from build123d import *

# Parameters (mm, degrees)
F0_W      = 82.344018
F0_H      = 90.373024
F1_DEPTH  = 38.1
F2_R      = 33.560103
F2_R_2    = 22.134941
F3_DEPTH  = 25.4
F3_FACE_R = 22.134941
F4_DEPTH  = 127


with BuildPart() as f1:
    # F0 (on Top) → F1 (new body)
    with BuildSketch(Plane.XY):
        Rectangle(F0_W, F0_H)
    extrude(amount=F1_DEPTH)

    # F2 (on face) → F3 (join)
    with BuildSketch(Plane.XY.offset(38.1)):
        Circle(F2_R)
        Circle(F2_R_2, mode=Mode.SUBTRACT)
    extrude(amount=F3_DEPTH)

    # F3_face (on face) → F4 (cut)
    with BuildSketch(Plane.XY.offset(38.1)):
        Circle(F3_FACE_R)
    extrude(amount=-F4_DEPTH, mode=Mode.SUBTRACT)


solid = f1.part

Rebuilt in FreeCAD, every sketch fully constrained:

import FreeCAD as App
import Part
import Sketcher
from FreeCAD import Vector
Q = App.Units.Quantity

doc = App.newDocument("Part")
body = doc.addObject("PartDesign::Body", "Body")

# Sketch on XY plane
sketch1 = body.newObject("Sketcher::SketchObject", "Sketch")
sketch1.AttachmentSupport = (doc.getObject("XY_Plane"), [""])
sketch1.MapMode = "FlatFace"
sketch1.addGeometry([
    Part.LineSegment(Vector(-41, 45, 0), Vector(-41, -45, 0)),
    Part.LineSegment(Vector(-41, -45, 0), Vector(41, -45, 0)),
    Part.LineSegment(Vector(41, -45, 0), Vector(41, 45, 0)),
    Part.LineSegment(Vector(41, 45, 0), Vector(-41, 45, 0)),
], False)
sketch1.addConstraint([
    Sketcher.Constraint("Coincident", 0, 2, 1, 1),
    Sketcher.Constraint("Coincident", 1, 2, 2, 1),
    Sketcher.Constraint("Coincident", 2, 2, 3, 1),
    Sketcher.Constraint("Coincident", 3, 2, 0, 1),
    Sketcher.Constraint("Vertical", 0),
    Sketcher.Constraint("Horizontal", 1),
    Sketcher.Constraint("Vertical", 2),
    Sketcher.Constraint("Horizontal", 3),
    Sketcher.Constraint("Symmetric", 0, 2, 2, 2, -1, 1),
    Sketcher.Constraint("DistanceX", 1, 1, 1, 2, 82.344018),
    Sketcher.Constraint("DistanceY", 0, 2, 0, 1, 90.373024),
])
pad1 = body.newObject("PartDesign::Pad", "Pad")
pad1.Profile = sketch1
pad1.Length = Q("1.5 in")

# Sketch on XY plane
sketch2 = body.newObject("Sketcher::SketchObject", "Sketch001")
sketch2.AttachmentSupport = (doc.getObject("XY_Plane"), [""])
sketch2.MapMode = "FlatFace"
sketch2.AttachmentOffset = App.Placement(Vector(0, 0, 1.5 * 25.4), App.Rotation())
sketch2.addGeometry([
    Part.Circle(Vector(0, 0, 0), Vector(0, 0, 1), 34),
    Part.Circle(Vector(0, 0, 0), Vector(0, 0, 1), 22),
], False)
sketch2.addConstraint([
    Sketcher.Constraint("Coincident", 0, 3, -1, 1),
    Sketcher.Constraint("Coincident", 1, 3, -1, 1),
    Sketcher.Constraint("Diameter", 0, 67.120206),
    Sketcher.Constraint("Diameter", 1, 44.269882),
])
pad2 = body.newObject("PartDesign::Pad", "Pad001")
pad2.Profile = sketch2
pad2.Length = Q("1 in")

# Sketch on XY plane
sketch3 = body.newObject("Sketcher::SketchObject", "Sketch002")
sketch3.AttachmentSupport = (doc.getObject("XY_Plane"), [""])
sketch3.MapMode = "FlatFace"
sketch3.AttachmentOffset = App.Placement(Vector(0, 0, 1.5 * 25.4), App.Rotation())
sketch3.addGeometry(Part.Circle(Vector(0, 0, 0), Vector(0, 0, 1), 22), False)
sketch3.addConstraint([
    Sketcher.Constraint("Coincident", 0, 3, -1, 1),
    Sketcher.Constraint("Diameter", 0, 44.269882),
])
pocket1 = body.newObject("PartDesign::Pocket", "Pocket")
pocket1.Profile = sketch3
pocket1.Length = Q("5 in")

doc.recompute()
